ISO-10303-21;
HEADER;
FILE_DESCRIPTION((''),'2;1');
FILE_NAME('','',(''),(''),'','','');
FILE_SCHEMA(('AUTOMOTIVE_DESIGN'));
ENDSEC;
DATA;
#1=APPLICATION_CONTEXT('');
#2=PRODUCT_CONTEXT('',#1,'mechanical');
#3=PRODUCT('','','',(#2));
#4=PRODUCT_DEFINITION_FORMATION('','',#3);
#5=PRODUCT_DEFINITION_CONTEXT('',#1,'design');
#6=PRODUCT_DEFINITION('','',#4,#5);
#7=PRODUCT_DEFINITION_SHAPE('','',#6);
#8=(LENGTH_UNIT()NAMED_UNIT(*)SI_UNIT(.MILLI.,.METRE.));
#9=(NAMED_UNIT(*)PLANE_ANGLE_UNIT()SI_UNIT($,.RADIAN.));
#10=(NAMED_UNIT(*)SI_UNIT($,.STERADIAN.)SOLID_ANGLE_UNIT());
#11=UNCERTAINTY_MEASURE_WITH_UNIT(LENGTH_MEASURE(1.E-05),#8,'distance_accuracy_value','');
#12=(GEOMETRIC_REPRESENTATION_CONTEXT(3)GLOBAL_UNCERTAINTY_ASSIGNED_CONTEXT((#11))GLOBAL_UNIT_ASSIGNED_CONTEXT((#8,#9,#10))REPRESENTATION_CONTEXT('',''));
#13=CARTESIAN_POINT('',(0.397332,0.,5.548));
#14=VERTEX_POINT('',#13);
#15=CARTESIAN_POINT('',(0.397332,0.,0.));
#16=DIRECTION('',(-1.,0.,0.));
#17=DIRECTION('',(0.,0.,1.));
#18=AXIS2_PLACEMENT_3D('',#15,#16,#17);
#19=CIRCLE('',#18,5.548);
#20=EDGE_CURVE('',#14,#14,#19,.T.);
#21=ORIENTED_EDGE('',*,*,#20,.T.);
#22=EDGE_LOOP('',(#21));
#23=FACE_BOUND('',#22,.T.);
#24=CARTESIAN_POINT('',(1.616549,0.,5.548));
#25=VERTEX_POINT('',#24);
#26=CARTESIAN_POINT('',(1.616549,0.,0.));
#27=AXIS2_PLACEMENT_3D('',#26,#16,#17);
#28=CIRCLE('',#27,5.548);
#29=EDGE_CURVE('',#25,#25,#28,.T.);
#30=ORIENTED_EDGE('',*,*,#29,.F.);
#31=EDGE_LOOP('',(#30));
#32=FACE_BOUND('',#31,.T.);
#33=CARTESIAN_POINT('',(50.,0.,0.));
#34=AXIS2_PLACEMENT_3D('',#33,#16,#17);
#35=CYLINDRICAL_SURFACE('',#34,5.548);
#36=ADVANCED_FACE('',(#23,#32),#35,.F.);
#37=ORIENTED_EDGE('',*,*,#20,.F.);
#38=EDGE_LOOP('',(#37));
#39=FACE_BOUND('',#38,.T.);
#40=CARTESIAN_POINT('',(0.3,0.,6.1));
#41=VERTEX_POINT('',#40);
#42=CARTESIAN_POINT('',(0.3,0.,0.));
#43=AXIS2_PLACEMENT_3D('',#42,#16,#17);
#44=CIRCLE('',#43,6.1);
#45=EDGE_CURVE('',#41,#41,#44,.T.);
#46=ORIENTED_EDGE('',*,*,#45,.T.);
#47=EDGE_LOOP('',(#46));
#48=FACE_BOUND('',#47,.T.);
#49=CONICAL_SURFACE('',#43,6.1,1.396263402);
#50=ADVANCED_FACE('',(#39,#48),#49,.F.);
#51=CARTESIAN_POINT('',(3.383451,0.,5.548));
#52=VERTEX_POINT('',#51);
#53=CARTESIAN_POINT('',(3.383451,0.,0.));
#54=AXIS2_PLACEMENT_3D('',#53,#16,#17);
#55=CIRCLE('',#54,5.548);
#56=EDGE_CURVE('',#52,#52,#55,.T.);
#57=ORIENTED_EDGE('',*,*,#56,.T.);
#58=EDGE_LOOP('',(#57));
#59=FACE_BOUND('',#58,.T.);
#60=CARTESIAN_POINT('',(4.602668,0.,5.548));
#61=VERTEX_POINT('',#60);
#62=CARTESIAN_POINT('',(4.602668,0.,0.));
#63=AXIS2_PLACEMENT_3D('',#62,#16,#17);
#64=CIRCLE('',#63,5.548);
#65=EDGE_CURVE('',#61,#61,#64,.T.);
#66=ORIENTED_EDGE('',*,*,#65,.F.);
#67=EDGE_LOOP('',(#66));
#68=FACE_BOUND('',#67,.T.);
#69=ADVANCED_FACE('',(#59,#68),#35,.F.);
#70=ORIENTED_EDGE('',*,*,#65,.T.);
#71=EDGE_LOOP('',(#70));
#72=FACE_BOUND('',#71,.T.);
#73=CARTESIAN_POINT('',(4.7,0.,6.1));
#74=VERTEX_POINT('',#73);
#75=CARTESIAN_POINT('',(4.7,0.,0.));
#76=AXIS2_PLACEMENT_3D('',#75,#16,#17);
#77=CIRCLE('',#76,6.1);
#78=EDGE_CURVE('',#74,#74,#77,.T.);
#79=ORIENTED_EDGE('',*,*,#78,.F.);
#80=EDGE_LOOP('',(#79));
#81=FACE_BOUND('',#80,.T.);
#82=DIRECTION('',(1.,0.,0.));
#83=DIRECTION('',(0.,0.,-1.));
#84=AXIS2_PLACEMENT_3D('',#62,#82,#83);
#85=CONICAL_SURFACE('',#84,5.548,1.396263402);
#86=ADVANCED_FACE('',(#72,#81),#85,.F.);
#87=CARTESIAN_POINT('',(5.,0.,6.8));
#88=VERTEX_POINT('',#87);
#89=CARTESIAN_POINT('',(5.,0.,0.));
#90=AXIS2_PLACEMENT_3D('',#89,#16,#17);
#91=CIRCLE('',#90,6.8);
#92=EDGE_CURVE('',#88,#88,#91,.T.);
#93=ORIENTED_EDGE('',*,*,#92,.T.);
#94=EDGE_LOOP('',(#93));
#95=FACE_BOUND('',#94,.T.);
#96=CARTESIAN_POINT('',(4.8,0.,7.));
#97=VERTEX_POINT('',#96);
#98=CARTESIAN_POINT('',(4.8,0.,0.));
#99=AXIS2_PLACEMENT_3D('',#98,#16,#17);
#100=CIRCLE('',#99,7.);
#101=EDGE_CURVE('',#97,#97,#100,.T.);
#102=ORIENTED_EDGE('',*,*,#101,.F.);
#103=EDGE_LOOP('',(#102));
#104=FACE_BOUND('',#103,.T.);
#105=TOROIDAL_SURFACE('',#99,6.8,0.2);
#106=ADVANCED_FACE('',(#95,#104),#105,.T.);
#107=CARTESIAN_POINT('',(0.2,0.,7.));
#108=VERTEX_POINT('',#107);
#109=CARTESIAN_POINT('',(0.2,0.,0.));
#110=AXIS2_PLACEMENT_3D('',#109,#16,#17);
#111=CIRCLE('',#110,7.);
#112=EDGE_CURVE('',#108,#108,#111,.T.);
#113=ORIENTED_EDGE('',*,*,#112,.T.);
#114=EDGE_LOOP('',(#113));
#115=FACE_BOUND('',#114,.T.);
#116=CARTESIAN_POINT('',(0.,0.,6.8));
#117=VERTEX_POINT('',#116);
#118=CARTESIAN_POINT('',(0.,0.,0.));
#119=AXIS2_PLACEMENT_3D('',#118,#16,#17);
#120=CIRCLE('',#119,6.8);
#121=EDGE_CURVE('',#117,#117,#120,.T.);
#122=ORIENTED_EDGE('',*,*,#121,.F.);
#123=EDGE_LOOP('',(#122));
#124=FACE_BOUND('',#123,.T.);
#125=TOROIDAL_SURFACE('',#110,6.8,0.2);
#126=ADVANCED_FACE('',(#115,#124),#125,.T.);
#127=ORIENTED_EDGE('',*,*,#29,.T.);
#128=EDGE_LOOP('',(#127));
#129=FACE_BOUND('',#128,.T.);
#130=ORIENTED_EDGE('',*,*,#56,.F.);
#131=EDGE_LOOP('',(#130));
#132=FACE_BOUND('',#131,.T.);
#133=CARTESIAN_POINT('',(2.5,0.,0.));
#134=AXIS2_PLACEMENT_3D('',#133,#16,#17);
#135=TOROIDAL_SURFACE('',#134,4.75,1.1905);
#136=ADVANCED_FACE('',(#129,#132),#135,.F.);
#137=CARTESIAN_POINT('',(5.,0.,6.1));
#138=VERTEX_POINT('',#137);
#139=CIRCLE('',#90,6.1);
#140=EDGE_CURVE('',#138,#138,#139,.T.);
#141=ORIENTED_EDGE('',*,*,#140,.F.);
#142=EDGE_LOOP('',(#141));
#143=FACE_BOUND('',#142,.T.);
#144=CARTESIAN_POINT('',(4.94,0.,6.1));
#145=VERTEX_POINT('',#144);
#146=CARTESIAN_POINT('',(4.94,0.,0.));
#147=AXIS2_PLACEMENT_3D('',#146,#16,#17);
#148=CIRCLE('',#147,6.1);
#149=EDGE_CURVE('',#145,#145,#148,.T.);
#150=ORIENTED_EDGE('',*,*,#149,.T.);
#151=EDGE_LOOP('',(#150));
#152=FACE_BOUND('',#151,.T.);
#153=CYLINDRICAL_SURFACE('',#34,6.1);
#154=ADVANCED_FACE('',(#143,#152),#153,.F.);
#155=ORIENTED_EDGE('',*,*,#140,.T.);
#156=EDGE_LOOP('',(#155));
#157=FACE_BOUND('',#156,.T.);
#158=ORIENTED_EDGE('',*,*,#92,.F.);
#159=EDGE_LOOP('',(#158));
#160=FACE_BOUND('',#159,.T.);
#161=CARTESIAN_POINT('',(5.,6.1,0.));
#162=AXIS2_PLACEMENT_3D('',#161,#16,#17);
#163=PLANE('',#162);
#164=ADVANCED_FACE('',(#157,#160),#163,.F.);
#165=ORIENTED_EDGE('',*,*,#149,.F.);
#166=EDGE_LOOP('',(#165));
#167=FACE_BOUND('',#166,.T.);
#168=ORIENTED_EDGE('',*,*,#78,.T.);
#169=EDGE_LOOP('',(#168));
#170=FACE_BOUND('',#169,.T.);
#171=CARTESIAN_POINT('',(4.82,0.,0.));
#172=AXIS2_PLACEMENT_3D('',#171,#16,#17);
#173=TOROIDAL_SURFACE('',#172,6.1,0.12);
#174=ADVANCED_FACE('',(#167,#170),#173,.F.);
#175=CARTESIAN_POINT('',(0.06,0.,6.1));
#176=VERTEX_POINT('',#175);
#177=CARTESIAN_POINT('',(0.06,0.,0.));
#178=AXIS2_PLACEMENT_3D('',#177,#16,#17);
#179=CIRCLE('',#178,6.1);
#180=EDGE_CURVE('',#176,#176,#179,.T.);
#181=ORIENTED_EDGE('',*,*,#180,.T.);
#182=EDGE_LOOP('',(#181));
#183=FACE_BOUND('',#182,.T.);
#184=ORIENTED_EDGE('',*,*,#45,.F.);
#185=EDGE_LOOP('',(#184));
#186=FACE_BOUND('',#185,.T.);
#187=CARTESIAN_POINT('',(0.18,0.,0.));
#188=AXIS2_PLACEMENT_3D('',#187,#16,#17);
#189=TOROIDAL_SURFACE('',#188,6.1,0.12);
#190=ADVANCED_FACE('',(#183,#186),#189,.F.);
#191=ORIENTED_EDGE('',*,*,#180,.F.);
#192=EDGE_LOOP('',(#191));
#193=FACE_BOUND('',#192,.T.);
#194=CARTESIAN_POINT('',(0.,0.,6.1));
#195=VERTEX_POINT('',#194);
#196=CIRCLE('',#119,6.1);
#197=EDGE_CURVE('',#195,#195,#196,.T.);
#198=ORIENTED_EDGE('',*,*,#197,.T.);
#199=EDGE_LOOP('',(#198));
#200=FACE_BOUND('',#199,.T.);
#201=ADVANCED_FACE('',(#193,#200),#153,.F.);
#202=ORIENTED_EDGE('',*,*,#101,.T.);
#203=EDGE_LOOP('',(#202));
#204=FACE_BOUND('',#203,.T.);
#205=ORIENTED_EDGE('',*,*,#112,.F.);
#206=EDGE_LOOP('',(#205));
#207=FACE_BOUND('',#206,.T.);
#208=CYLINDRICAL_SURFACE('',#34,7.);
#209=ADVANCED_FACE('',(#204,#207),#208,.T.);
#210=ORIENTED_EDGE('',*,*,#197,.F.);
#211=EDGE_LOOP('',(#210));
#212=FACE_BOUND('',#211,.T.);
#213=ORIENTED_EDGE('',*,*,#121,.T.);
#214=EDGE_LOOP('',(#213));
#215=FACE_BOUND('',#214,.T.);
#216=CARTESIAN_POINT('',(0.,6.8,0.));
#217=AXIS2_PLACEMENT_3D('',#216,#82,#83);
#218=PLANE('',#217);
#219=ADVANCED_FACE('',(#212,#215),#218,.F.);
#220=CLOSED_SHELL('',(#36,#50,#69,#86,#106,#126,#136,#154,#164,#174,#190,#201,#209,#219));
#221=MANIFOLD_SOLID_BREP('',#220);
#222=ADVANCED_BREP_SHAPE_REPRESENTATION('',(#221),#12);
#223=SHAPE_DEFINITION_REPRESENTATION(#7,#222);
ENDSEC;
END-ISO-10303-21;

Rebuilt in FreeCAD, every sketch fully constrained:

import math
import FreeCAD as App
import Part
import Sketcher

V = App.Vector
Q = App.Units.Quantity

doc = App.newDocument("Part")
body = doc.addObject("PartDesign::Body", "Body")

sketch1 = body.newObject("Sketcher::SketchObject", "Sketch")
sketch1.AttachmentSupport = (doc.getObject("XY_Plane"), [""])
sketch1.MapMode = "FlatFace"
sketch1.addGeometry([
    Part.LineSegment(V(0, 6.8, 0), V(0, 6.1, 0)),
    Part.LineSegment(V(0, 6.1, 0), V(0.06, 6.1, 0)),
    Part.ArcOfCircle(Part.Circle(V(0.18, 6.1, 0), V(0, 0, 1), 0.12), math.radians(0), math.radians(180)),
    Part.LineSegment(V(0.3, 6.1, 0), V(0.4, 5.55, 0)),
    Part.LineSegment(V(0.4, 5.55, 0), V(1.62, 5.55, 0)),
    Part.ArcOfCircle(Part.Circle(V(2.5, 4.75, 0), V(0, 0, 1), 1.19), math.radians(42), math.radians(138)),
    Part.LineSegment(V(3.38, 5.55, 0), V(4.6, 5.55, 0)),
    Part.LineSegment(V(4.6, 5.55, 0), V(4.7, 6.1, 0)),
    Part.ArcOfCircle(Part.Circle(V(4.82, 6.1, 0), V(0, 0, 1), 0.12), math.radians(0), math.radians(180)),
    Part.LineSegment(V(4.94, 6.1, 0), V(5, 6.1, 0)),
    Part.LineSegment(V(5, 6.1, 0), V(5, 6.8, 0)),
    Part.ArcOfCircle(Part.Circle(V(4.8, 6.8, 0), V(0, 0, 1), 0.2), math.radians(0), math.radians(90)),
    Part.LineSegment(V(4.8, 7, 0), V(0.2, 7, 0)),
    Part.ArcOfCircle(Part.Circle(V(0.2, 6.8, 0), V(0, 0, 1), 0.2), math.radians(90), math.radians(180)),
], False)
sketch1.addConstraint([
    Sketcher.Constraint("Coincident", 0, 2, 1, 1),
    Sketcher.Constraint("Coincident", 1, 2, 2, 2),
    Sketcher.Constraint("Coincident", 2, 1, 3, 1),
    Sketcher.Constraint("Coincident", 3, 2, 4, 1),
    Sketcher.Constraint("Coincident", 4, 2, 5, 2),
    Sketcher.Constraint("Coincident", 5, 1, 6, 1),
    Sketcher.Constraint("Coincident", 6, 2, 7, 1),
    Sketcher.Constraint("Coincident", 7, 2, 8, 2),
    Sketcher.Constraint("Coincident", 8, 1, 9, 1),
    Sketcher.Constraint("Coincident", 9, 2, 10, 1),
    Sketcher.Constraint("Tangent", 10, 2, 11, 1),
    Sketcher.Constraint("Tangent", 11, 2, 12, 1),
    Sketcher.Constraint("Tangent", 12, 2, 13, 1),
    Sketcher.Constraint("Tangent", 13, 2, 0, 1),
    Sketcher.Constraint("Vertical", 0),
    Sketcher.Constraint("Horizontal", 1),
    Sketcher.Constraint("Horizontal", 4),
    Sketcher.Constraint("Horizontal", 6),
    Sketcher.Constraint("Horizontal", 9),
    Sketcher.Constraint("Vertical", 10),
    Sketcher.Constraint("Horizontal", 12),
    Sketcher.Constraint("Equal", 2, 8),
    Sketcher.Constraint("Equal", 11, 13),
    Sketcher.Constraint("PointOnObject", 0, 2, -2),
    Sketcher.Constraint("Horizontal", 2, 3, 8, 3),
    Sketcher.Constraint("Horizontal", 8, 3, 0, 2),
    Sketcher.Constraint("Horizontal", 1, 2, 2, 1),
    Sketcher.Constraint("Horizontal", 4, 2, 5, 1),
    Sketcher.Constraint("Horizontal", 2, 1, 7, 2),
    Sketcher.Constraint("Horizontal", 7, 2, 8, 1),
    Sketcher.Constraint("Equal", 4, 6),
    Sketcher.Constraint("Equal", 1, 9),
    Sketcher.Constraint("Equal", 3, 7),
    Sketcher.Constraint("Radius", 11, 0.2),
    Sketcher.Constraint("Angle", 3, Q("-80 deg")),
    Sketcher.Constraint("Radius", 2, 0.12),
    Sketcher.Constraint("DistanceX", 12, 2, 12, 1, 4.6),
    Sketcher.Constraint("DistanceY", 0, 2, 0, 1, 0.7),
    Sketcher.Constraint("DistanceY", -1, 1, 11, 2, 7.0),
    Sketcher.Constraint("DistanceX", 1, 1, 1, 2, 0.06),
    Sketcher.Constraint("Radius", 5, 1.1905),
    Sketcher.Constraint("DistanceY", -1, 1, 5, 3, 4.75),
    Sketcher.Constraint("DistanceY", -1, 1, 3, 2, 5.548),
])
revolution = body.newObject("PartDesign::Revolution", "Revolution")
revolution.Profile = sketch1
revolution.ReferenceAxis = (sketch1, ["H_Axis"])
revolution.Angle = 360

doc.recompute()
